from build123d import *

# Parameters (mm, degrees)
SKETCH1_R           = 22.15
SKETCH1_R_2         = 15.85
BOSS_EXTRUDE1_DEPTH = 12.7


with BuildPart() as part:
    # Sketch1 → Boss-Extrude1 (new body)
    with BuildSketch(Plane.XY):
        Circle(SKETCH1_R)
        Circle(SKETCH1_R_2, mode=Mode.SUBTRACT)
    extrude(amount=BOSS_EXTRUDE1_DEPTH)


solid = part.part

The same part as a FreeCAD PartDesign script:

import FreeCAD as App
import Part
import Sketcher

doc = App.newDocument("Part")
body = doc.addObject("PartDesign::Body", "Body")

# Sketch on XY plane
sketch1 = body.newObject("Sketcher::SketchObject", "Sketch")
sketch1.AttachmentSupport = (doc.getObject("XY_Plane"), [""])
sketch1.MapMode = "FlatFace"
sketch1.addGeometry([
    Part.Circle(App.Vector(0, 0, 0), App.Vector(0, 0, 1), 22.15),
    Part.Circle(App.Vector(0, 0, 0), App.Vector(0, 0, 1), 15.85),
], False)
sketch1.addConstraint([
    Sketcher.Constraint("Coincident", 0, 3, -1, 1),
    Sketcher.Constraint("Coincident", 1, 3, -1, 1),
    Sketcher.Constraint("Diameter", 0, 44.3),
    Sketcher.Constraint("Diameter", 1, 31.7),
])
pad1 = body.newObject("PartDesign::Pad", "Pad")
pad1.Profile = sketch1
pad1.Length = 12.7

doc.recompute()
